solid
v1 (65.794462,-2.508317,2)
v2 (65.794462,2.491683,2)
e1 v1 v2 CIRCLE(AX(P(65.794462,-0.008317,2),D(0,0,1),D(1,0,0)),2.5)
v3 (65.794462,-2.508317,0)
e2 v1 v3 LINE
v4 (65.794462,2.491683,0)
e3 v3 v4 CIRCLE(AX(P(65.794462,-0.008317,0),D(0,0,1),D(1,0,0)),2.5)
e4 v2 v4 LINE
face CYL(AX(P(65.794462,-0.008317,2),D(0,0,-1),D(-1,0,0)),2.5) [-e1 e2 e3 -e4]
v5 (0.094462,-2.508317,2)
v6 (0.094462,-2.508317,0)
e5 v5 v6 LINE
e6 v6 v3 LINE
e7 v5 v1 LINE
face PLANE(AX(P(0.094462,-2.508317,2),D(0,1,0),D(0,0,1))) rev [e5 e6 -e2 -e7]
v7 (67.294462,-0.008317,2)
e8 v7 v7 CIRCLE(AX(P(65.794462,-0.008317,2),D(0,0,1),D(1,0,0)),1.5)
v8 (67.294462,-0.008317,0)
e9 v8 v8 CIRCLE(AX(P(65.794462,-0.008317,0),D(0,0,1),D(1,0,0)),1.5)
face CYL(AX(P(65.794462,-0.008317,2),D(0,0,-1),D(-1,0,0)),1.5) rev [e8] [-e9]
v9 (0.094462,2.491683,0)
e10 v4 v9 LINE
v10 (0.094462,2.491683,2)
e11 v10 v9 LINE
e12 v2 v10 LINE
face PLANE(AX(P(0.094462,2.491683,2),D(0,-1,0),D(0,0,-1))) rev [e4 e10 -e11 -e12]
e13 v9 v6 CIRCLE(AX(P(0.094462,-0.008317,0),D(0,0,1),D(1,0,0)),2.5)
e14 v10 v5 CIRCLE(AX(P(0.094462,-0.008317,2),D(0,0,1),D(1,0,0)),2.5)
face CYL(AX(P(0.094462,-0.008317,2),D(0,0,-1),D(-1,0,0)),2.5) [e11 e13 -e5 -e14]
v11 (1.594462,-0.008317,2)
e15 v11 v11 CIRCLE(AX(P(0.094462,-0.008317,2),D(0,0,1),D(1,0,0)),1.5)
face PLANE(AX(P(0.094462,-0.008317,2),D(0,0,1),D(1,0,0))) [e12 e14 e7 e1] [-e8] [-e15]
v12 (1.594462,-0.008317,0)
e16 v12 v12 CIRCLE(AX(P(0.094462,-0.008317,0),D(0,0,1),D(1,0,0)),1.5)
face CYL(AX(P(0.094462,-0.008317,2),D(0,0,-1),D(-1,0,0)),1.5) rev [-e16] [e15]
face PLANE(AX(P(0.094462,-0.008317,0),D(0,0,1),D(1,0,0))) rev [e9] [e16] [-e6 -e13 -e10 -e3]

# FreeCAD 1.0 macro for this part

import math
import FreeCAD as App
import Part
import Sketcher
from FreeCAD import Vector

doc = App.newDocument("Part")
body = doc.addObject("PartDesign::Body", "Body")

sketch1 = body.newObject("Sketcher::SketchObject", "Sketch")
sketch1.AttachmentSupport = (doc.getObject("XY_Plane"), [""])
sketch1.MapMode = "FlatFace"
sketch1.addGeometry(Part.LineSegment(Vector(65.8, 2.5, 0), Vector(0.1, 2.5, 0)), False)
sketch1.addGeometry(Part.ArcOfCircle(Part.Circle(Vector(0.1, 0, 0), Vector(0, 0, 1), 2.5), math.radians(90), math.radians(270)), False)
sketch1.addGeometry(Part.LineSegment(Vector(0.1, -2.5, 0), Vector(65.8, -2.5, 0)), False)
sketch1.addGeometry(Part.ArcOfCircle(Part.Circle(Vector(65.8, 0, 0), Vector(0, 0, 1), 2.5), math.radians(-90), math.radians(90)), False)
sketch1.addGeometry(Part.Circle(Vector(65.8, 0, 0), Vector(0, 0, 1), 1.5), False)
sketch1.addGeometry(Part.Circle(Vector(0.1, 0, 0), Vector(0, 0, 1), 1.5), False)
sketch1.addConstraint(Sketcher.Constraint("Tangent", 0, 2, 1, 1))
sketch1.addConstraint(Sketcher.Constraint("Tangent", 1, 2, 2, 1))
sketch1.addConstraint(Sketcher.Constraint("Tangent", 2, 2, 3, 1))
sketch1.addConstraint(Sketcher.Constraint("Tangent", 3, 2, 0, 1))
sketch1.addConstraint(Sketcher.Constraint("Horizontal", 0))
sketch1.addConstraint(Sketcher.Constraint("Horizontal", 2))
sketch1.addConstraint(Sketcher.Constraint("Coincident", 4, 3, 3, 3))
sketch1.addConstraint(Sketcher.Constraint("Coincident", 5, 3, 1, 3))
sketch1.addConstraint(Sketcher.Constraint("Equal", 4, 5))
sketch1.addConstraint(Sketcher.Constraint("Diameter", 4, 3.0))
sketch1.addConstraint(Sketcher.Constraint("Radius", 1, 2.5))
sketch1.addConstraint(Sketcher.Constraint("DistanceX", 0, 2, 0, 1, 65.7))
sketch1.addConstraint(Sketcher.Constraint("DistanceX", -1, 1, 1, 3, 0.094462))
sketch1.addConstraint(Sketcher.Constraint("DistanceY", 1, 3, -1, 1, 0.008317))
pad1 = body.newObject("PartDesign::Pad", "Pad")
pad1.Profile = sketch1
pad1.Length = 2

doc.recompute()
